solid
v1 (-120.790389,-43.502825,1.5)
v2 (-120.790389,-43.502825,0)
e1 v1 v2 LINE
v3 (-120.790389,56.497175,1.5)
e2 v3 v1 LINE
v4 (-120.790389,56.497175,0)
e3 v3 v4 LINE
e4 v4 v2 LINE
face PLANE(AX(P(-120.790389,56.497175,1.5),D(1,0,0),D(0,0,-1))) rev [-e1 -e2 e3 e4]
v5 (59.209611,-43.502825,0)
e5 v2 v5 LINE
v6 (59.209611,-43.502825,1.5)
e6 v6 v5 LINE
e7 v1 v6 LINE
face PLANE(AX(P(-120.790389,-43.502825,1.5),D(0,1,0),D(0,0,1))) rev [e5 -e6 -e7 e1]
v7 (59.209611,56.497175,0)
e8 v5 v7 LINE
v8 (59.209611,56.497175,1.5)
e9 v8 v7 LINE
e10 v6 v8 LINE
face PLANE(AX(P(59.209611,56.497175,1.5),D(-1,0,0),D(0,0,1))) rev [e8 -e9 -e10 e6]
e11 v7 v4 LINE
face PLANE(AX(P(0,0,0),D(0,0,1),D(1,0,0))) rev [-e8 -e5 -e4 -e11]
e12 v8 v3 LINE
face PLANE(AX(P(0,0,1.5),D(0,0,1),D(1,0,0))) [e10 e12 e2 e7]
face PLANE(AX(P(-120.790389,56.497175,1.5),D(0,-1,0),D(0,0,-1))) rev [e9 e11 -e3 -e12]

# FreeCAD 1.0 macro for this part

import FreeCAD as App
import Part
import Sketcher
from FreeCAD import Vector
Q = App.Units.Quantity


def add_polygon(sketch, points):
    """Adds a closed chain of lines whose ends are joined by coincident constraints."""
    first, n = sketch.GeometryCount, len(points)
    for a, b in zip(points, points[1:] + points[:1]):
        sketch.addGeometry(Part.LineSegment(App.Vector(*a, 0), App.Vector(*b, 0)), False)
    for i in range(n):
        sketch.addConstraint(Sketcher.Constraint("Coincident", first + i, 2, first + (i + 1) % n, 1))

doc = App.newDocument("Part")
body = doc.addObject("PartDesign::Body", "Body")

# Sketch on XY plane
sketch1 = body.newObject("Sketcher::SketchObject", "Sketch")
sketch1.AttachmentSupport = (doc.getObject("XY_Plane"), [""])
sketch1.MapMode = "FlatFace"
add_polygon(sketch1, [(-120.790389, 56.497175), (-120.790389, -43.502825), (59.209611, -43.502825), (59.209611, 56.497175)])  # lines 0-3
sketch1.addConstraint(Sketcher.Constraint("Vertical", 0))
sketch1.addConstraint(Sketcher.Constraint("Horizontal", 1))
sketch1.addConstraint(Sketcher.Constraint("Vertical", 2))
sketch1.addConstraint(Sketcher.Constraint("Horizontal", 3))
sketch1.addConstraint(Sketcher.Constraint("DistanceX", 1, 1, 1, 2, Q("180 mm")))
sketch1.addConstraint(Sketcher.Constraint("DistanceY", 0, 2, 0, 1, Q("100 mm")))
sketch1.addConstraint(Sketcher.Constraint("DistanceX", 0, 2, -1, 1, Q("120.790389 mm")))
sketch1.addConstraint(Sketcher.Constraint("DistanceY", 0, 2, -1, 1, Q("43.502825 mm")))
pad1 = body.newObject("PartDesign::Pad", "Pad")
pad1.Profile = sketch1
pad1.Length = 1.5

doc.recompute()
